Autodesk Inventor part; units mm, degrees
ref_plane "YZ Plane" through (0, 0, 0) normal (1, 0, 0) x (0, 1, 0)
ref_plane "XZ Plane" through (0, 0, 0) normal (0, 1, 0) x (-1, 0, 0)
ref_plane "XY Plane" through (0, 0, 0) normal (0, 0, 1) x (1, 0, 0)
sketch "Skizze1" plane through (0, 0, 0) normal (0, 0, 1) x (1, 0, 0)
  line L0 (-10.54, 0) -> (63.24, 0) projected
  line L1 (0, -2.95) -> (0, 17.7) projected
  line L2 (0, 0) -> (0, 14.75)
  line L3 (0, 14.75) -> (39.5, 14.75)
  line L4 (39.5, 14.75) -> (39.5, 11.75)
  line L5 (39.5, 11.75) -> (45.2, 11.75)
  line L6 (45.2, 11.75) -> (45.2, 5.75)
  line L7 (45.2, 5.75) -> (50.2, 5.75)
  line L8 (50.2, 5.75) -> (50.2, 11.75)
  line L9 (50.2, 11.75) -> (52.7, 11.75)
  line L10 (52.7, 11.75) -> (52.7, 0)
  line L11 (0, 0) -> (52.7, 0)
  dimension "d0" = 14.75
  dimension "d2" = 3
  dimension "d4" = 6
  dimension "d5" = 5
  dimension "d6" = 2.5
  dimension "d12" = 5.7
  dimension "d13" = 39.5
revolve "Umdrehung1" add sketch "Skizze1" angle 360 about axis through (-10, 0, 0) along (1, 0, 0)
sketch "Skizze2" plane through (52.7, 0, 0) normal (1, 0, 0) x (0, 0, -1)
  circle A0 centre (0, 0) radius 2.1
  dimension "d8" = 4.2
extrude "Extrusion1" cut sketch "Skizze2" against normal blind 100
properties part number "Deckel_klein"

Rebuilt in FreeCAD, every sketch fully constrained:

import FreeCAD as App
import Part
import Sketcher


def add_polygon(sketch, points):
    """Adds a closed chain of lines whose ends are joined by coincident constraints."""
    first, n = sketch.GeometryCount, len(points)
    for a, b in zip(points, points[1:] + points[:1]):
        sketch.addGeometry(Part.LineSegment(App.Vector(*a, 0), App.Vector(*b, 0)), False)
    for i in range(n):
        sketch.addConstraint(Sketcher.Constraint("Coincident", first + i, 2, first + (i + 1) % n, 1))

doc = App.newDocument("Part")
body = doc.addObject("PartDesign::Body", "Body")

# Sketch on XY plane
sketch1 = body.newObject("Sketcher::SketchObject", "Sketch")
sketch1.AttachmentSupport = (doc.getObject("XY_Plane"), [""])
sketch1.MapMode = "FlatFace"
add_polygon(sketch1, [(0, 14.8), (0, 0), (52.7, 0), (52.7, 11.8), (50.2, 11.8), (50.2, 5.8), (45.2, 5.8), (45.2, 11.8), (39.5, 11.8), (39.5, 14.8)])  # lines 0-9
sketch1.addConstraint([
    Sketcher.Constraint("Vertical", 0),
    Sketcher.Constraint("Horizontal", 1),
    Sketcher.Constraint("Vertical", 2),
    Sketcher.Constraint("Horizontal", 3),
    Sketcher.Constraint("Vertical", 4),
    Sketcher.Constraint("Horizontal", 5),
    Sketcher.Constraint("Vertical", 6),
    Sketcher.Constraint("Horizontal", 7),
    Sketcher.Constraint("Vertical", 8),
    Sketcher.Constraint("Horizontal", 9),
    Sketcher.Constraint("Coincident", 0, 2, -1, 1),
    Sketcher.Constraint("Horizontal", 3, 2, 6, 2),
    Sketcher.Constraint("DistanceX", 5, 2, 5, 1, 5.0),
    Sketcher.Constraint("DistanceY", 4, 2, 4, 1, 6.0),
    Sketcher.Constraint("DistanceY", 8, 1, 8, 2, 3.0),
    Sketcher.Constraint("DistanceX", 3, 2, 3, 1, 2.5),
    Sketcher.Constraint("DistanceX", 7, 2, 7, 1, 5.7),
    Sketcher.Constraint("DistanceX", 9, 2, 9, 1, 39.5),
    Sketcher.Constraint("DistanceY", 0, 2, 0, 1, 14.75),
])
revolution = body.newObject("PartDesign::Revolution", "Revolution")
revolution.Profile = sketch1
revolution.ReferenceAxis = (sketch1, ["H_Axis"])
revolution.Angle = 360

# Sketch on YZ plane
sketch2 = body.newObject("Sketcher::SketchObject", "Sketch001")
sketch2.AttachmentSupport = (doc.getObject("YZ_Plane"), [""])
sketch2.MapMode = "FlatFace"
sketch2.AttachmentOffset = App.Placement(App.Vector(0, 0, 52.7), App.Rotation())
sketch2.addGeometry(Part.Circle(App.Vector(0, 0, 0), App.Vector(0, 0, 1), 2.1), False)
sketch2.addConstraint([
    Sketcher.Constraint("Coincident", 0, 3, -1, 1),
    Sketcher.Constraint("Diameter", 0, 4.2),
])
pocket1 = body.newObject("PartDesign::Pocket", "Pocket")
pocket1.Profile = sketch2
pocket1.Length = 100

doc.recompute()
